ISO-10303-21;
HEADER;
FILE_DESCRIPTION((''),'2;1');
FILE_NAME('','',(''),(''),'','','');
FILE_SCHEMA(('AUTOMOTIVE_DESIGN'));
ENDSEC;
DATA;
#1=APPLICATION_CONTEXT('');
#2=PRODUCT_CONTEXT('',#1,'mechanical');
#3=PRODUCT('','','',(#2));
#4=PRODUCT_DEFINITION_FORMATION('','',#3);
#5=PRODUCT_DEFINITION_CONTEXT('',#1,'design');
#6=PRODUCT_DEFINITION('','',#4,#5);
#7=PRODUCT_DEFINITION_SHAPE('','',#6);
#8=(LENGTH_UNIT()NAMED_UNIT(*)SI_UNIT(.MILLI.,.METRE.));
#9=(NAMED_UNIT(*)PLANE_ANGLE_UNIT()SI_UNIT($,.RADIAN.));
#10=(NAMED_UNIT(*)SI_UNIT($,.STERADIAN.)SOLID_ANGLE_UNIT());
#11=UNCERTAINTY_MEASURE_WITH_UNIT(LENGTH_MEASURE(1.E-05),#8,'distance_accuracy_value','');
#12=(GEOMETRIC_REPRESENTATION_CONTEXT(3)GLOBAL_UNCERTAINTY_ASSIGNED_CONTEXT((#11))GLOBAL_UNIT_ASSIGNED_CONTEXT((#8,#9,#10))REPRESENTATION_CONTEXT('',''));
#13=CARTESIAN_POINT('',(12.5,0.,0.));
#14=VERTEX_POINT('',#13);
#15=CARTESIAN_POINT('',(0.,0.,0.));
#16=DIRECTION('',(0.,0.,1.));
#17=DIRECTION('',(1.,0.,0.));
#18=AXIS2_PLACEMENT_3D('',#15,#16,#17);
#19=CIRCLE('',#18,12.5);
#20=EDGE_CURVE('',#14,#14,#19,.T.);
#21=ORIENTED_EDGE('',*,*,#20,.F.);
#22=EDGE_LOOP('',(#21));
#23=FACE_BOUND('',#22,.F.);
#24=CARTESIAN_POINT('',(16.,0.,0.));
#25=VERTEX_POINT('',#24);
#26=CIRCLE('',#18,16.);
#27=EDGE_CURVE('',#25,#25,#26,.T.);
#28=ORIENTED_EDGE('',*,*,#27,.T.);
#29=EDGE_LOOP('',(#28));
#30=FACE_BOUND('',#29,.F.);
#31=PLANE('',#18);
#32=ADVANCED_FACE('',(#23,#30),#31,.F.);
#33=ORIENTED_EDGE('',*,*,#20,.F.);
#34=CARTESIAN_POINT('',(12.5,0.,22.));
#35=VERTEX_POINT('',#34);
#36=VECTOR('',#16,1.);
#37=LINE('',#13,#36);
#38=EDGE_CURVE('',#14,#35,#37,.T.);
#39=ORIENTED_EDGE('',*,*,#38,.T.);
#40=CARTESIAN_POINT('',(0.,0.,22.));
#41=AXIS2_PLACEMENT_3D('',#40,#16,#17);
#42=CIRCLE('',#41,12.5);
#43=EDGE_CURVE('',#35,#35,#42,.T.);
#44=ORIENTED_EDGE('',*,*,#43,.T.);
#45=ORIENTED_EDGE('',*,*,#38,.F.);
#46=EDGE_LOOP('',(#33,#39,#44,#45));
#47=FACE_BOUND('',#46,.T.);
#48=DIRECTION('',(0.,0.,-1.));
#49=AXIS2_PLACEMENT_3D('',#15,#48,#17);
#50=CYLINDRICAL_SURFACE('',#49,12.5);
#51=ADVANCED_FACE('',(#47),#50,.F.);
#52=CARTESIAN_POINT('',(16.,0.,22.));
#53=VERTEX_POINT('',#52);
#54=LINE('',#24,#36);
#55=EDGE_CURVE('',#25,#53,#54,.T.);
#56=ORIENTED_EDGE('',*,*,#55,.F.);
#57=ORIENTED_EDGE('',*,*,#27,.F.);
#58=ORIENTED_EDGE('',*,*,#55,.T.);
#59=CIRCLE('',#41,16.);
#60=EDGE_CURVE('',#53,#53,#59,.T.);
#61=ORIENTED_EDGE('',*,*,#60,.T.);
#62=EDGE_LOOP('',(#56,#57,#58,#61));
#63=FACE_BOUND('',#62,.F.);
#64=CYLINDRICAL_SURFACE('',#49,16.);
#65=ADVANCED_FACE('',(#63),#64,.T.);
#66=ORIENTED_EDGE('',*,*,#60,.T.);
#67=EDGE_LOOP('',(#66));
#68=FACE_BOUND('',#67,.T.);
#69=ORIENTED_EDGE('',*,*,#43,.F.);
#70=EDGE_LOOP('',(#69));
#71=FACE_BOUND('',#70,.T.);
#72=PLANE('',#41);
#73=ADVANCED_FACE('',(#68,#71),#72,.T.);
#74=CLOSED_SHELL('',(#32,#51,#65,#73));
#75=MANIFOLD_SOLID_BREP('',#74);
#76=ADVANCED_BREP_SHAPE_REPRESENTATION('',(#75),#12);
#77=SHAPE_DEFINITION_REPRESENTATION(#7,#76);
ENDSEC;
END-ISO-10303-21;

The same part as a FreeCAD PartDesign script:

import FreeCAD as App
import Part
import Sketcher
from FreeCAD import Vector
Q = App.Units.Quantity

doc = App.newDocument("Part")
body = doc.addObject("PartDesign::Body", "Body")

sketch1 = doc.addObject("Sketcher::SketchObject", "Sketch")
body.addObject(sketch1)
sketch1.AttachmentSupport = (doc.XY_Plane, [""])
sketch1.MapMode = "FlatFace"
sketch1.addGeometry([
    Part.Circle(Vector(0, 0, 0), Vector(0, 0, 1), 16),
    Part.Circle(Vector(0, 0, 0), Vector(0, 0, 1), 12.5),
], False)
sketch1.addConstraint([
    Sketcher.Constraint("Coincident", 0, 3, -1, 1),
    Sketcher.Constraint("Coincident", 1, 3, -1, 1),
    Sketcher.Constraint("Diameter", 0, Q("32 mm")),
    Sketcher.Constraint("Diameter", 1, Q("25 mm")),
])
pad1 = doc.addObject("PartDesign::Pad", "Pad")
body.addObject(pad1)
pad1.Profile = sketch1
pad1.Length = 22

doc.recompute()
